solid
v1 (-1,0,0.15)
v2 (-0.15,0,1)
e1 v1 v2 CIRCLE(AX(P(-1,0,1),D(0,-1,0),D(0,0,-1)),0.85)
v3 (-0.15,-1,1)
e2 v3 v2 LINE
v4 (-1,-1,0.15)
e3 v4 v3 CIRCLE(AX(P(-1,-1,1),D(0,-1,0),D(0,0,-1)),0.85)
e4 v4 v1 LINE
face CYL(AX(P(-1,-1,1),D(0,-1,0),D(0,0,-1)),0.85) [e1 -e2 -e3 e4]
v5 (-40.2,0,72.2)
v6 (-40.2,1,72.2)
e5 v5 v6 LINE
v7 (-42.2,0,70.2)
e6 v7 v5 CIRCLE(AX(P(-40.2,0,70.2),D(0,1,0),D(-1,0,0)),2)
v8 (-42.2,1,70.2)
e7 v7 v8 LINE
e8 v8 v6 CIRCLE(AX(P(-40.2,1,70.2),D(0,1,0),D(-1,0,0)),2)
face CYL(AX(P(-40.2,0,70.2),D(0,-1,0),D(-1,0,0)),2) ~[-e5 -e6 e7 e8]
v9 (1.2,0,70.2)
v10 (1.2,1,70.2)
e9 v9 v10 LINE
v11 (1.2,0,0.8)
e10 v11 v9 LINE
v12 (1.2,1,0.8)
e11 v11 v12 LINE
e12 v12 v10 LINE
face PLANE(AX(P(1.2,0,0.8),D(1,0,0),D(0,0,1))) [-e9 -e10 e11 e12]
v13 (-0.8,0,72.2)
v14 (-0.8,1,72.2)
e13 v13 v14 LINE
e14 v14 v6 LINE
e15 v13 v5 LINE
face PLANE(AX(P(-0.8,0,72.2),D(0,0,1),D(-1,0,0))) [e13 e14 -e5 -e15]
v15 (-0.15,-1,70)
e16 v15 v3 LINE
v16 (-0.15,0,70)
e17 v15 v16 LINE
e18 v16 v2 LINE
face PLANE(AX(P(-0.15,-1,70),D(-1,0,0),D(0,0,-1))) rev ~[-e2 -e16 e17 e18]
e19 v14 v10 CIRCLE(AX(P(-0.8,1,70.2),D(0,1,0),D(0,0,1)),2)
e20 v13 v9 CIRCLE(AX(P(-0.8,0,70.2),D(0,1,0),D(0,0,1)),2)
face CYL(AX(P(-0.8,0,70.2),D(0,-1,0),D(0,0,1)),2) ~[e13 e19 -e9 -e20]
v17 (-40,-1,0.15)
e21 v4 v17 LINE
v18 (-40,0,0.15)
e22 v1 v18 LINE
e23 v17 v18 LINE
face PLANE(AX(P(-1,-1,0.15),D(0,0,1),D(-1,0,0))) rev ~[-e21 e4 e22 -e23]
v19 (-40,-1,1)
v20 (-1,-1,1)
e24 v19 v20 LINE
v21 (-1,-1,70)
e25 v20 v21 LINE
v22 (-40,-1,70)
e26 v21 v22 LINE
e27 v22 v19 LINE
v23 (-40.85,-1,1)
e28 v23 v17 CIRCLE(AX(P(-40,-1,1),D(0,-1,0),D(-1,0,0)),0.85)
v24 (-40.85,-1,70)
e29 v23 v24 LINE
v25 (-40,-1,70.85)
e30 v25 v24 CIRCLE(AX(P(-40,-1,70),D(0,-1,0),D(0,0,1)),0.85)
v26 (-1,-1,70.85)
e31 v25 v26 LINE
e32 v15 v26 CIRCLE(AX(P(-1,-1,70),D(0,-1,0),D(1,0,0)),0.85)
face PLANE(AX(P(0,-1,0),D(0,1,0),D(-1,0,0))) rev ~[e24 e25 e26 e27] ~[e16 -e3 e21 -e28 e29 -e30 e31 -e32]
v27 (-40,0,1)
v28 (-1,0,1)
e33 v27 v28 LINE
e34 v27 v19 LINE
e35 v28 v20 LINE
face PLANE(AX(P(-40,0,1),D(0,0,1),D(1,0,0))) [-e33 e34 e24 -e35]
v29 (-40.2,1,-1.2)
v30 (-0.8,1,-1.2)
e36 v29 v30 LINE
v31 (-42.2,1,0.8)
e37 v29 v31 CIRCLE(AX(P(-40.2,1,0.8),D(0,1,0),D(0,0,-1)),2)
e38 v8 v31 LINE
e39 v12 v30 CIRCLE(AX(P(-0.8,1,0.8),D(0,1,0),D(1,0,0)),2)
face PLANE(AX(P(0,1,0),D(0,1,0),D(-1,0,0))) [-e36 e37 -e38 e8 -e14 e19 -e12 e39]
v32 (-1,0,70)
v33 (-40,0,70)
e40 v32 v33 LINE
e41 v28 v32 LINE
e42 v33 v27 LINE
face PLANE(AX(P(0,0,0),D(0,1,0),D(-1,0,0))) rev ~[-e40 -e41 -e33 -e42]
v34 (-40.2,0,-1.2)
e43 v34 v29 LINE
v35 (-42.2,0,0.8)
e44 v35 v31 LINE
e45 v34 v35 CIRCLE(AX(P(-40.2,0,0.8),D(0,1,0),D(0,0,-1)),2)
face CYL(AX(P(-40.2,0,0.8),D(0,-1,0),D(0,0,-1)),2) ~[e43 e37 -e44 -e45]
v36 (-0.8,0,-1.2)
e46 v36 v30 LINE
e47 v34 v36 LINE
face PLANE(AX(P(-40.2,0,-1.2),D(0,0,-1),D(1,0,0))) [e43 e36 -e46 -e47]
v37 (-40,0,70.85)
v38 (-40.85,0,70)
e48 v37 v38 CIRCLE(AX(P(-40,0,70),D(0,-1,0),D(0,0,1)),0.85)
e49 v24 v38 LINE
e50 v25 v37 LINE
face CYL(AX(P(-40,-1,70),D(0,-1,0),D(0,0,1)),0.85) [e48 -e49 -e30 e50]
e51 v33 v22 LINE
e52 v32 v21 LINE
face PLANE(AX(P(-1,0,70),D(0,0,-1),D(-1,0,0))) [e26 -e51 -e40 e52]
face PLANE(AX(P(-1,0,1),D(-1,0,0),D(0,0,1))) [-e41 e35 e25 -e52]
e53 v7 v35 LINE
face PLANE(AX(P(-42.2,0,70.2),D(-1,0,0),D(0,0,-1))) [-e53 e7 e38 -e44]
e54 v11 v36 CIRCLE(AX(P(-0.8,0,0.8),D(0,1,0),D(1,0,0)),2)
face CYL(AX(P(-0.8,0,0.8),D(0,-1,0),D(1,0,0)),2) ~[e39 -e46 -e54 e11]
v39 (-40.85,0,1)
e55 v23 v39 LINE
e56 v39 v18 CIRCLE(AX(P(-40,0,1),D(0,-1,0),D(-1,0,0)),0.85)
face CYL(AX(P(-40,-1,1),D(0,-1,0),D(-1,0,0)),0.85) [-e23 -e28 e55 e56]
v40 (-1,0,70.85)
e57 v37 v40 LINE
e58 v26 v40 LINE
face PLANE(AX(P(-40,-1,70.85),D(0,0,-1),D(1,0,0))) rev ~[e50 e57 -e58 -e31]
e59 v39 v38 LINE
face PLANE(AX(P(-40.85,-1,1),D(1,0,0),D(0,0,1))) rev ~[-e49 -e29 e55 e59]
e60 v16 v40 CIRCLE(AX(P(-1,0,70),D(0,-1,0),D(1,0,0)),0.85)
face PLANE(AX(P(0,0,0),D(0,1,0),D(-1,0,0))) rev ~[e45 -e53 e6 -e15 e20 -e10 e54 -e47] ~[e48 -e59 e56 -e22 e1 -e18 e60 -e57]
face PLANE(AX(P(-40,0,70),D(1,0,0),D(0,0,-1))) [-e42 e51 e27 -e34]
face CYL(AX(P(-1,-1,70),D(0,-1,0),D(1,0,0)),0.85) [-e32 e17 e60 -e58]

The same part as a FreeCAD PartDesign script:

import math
import FreeCAD as App
import Part
import Sketcher
from FreeCAD import Vector

doc = App.newDocument("Part")
body = doc.addObject("PartDesign::Body", "Body")

sketch1 = body.newObject("Sketcher::SketchObject", "Sketch")
sketch1.AttachmentSupport = (doc.getObject("XZ_Plane"), [""])
sketch1.MapMode = "FlatFace"
sketch1.addGeometry([
    Part.LineSegment(Vector(-42.2, 0.8, 0), Vector(-42.2, 70.2, 0)),
    Part.ArcOfCircle(Part.Circle(Vector(-40.2, 70.2, 0), Vector(0, 0, 1), 2), math.radians(90), math.radians(180)),
    Part.LineSegment(Vector(-40.2, 72.2, 0), Vector(-0.8, 72.2, 0)),
    Part.ArcOfCircle(Part.Circle(Vector(-0.8, 70.2, 0), Vector(0, 0, 1), 2), math.radians(0), math.radians(90)),
    Part.LineSegment(Vector(1.2, 70.2, 0), Vector(1.2, 0.8, 0)),
    Part.ArcOfCircle(Part.Circle(Vector(-0.8, 0.8, 0), Vector(0, 0, 1), 2), math.radians(-90), math.radians(0)),
    Part.LineSegment(Vector(-0.8, -1.2, 0), Vector(-40.2, -1.2, 0)),
    Part.ArcOfCircle(Part.Circle(Vector(-40.2, 0.8, 0), Vector(0, 0, 1), 2), math.radians(180), math.radians(270)),
], False)
sketch1.addConstraint([
    Sketcher.Constraint("Tangent", 0, 2, 1, 2),
    Sketcher.Constraint("Tangent", 1, 1, 2, 1),
    Sketcher.Constraint("Tangent", 2, 2, 3, 2),
    Sketcher.Constraint("Tangent", 3, 1, 4, 1),
    Sketcher.Constraint("Tangent", 4, 2, 5, 2),
    Sketcher.Constraint("Tangent", 5, 1, 6, 1),
    Sketcher.Constraint("Tangent", 6, 2, 7, 2),
    Sketcher.Constraint("Tangent", 7, 1, 0, 1),
    Sketcher.Constraint("Vertical", 0),
    Sketcher.Constraint("Horizontal", 2),
    Sketcher.Constraint("Vertical", 4),
    Sketcher.Constraint("Horizontal", 6),
    Sketcher.Constraint("Equal", 1, 3),
    Sketcher.Constraint("Equal", 3, 5),
    Sketcher.Constraint("Equal", 5, 7),
    Sketcher.Constraint("Radius", 1, 2.0),
    Sketcher.Constraint("DistanceX", -1, 1, 3, 1, 1.2),
    Sketcher.Constraint("DistanceY", 5, 1, -1, 1, 1.2),
    Sketcher.Constraint("DistanceX", 2, 1, 2, 2, 39.4),
    Sketcher.Constraint("DistanceY", 0, 1, 0, 2, 69.4),
])
pad1 = body.newObject("PartDesign::Pad", "Pad")
pad1.Profile = sketch1
pad1.Length = 1
pad1.Reversed = True

sketch2 = body.newObject("Sketcher::SketchObject", "Sketch001")
sketch2.AttachmentSupport = (doc.getObject("XZ_Plane"), [""])
sketch2.MapMode = "FlatFace"
sketch2.addGeometry([
    Part.ArcOfCircle(Part.Circle(Vector(-1, 1, 0), Vector(0, 0, 1), 1), math.radians(-90), math.radians(0)),
    Part.LineSegment(Vector(-1, 0, 0), Vector(-40, 0, 0)),
    Part.ArcOfCircle(Part.Circle(Vector(-40, 1, 0), Vector(0, 0, 1), 1), math.radians(180), math.radians(270)),
    Part.LineSegment(Vector(-41, 1, 0), Vector(-41, 70, 0)),
    Part.ArcOfCircle(Part.Circle(Vector(-40, 70, 0), Vector(0, 0, 1), 1), math.radians(90), math.radians(180)),
    Part.LineSegment(Vector(-40, 71, 0), Vector(-1, 71, 0)),
    Part.ArcOfCircle(Part.Circle(Vector(-1, 70, 0), Vector(0, 0, 1), 1), math.radians(0), math.radians(90)),
    Part.LineSegment(Vector(0, 70, 0), Vector(0, 1, 0)),
    Part.LineSegment(Vector(-40, 1, 0), Vector(-1, 1, 0)),
    Part.LineSegment(Vector(-1, 1, 0), Vector(-1, 70, 0)),
    Part.LineSegment(Vector(-1, 70, 0), Vector(-40, 70, 0)),
    Part.LineSegment(Vector(-40, 70, 0), Vector(-40, 1, 0)),
], False)
sketch2.addConstraint([
    Sketcher.Constraint("Tangent", 0, 1, 1, 1),
    Sketcher.Constraint("Tangent", 1, 2, 2, 2),
    Sketcher.Constraint("Tangent", 2, 1, 3, 1),
    Sketcher.Constraint("Tangent", 3, 2, 4, 2),
    Sketcher.Constraint("Tangent", 4, 1, 5, 1),
    Sketcher.Constraint("Tangent", 5, 2, 6, 2),
    Sketcher.Constraint("Tangent", 6, 1, 7, 1),
    Sketcher.Constraint("Tangent", 7, 2, 0, 2),
    Sketcher.Constraint("Coincident", 8, 2, 9, 1),
    Sketcher.Constraint("Coincident", 9, 2, 10, 1),
    Sketcher.Constraint("Coincident", 10, 2, 11, 1),
    Sketcher.Constraint("Coincident", 11, 2, 8, 1),
    Sketcher.Constraint("Horizontal", 1),
    Sketcher.Constraint("Vertical", 3),
    Sketcher.Constraint("Horizontal", 5),
    Sketcher.Constraint("Vertical", 7),
    Sketcher.Constraint("Horizontal", 8),
    Sketcher.Constraint("Vertical", 9),
    Sketcher.Constraint("Horizontal", 10),
    Sketcher.Constraint("Vertical", 11),
    Sketcher.Constraint("Coincident", 8, 2, 0, 3),
    Sketcher.Constraint("Coincident", 9, 2, 6, 3),
    Sketcher.Constraint("Coincident", 10, 2, 4, 3),
    Sketcher.Constraint("Equal", 0, 2),
    Sketcher.Constraint("PointOnObject", 0, 1, -1),
    Sketcher.Constraint("PointOnObject", 6, 1, -2),
    Sketcher.Constraint("Radius", 0, 1.0),
    Sketcher.Constraint("DistanceX", 2, 1, -1, 1, 41.0),
    Sketcher.Constraint("DistanceY", -1, 1, 4, 1, 71.0),
])
pad2 = body.newObject("PartDesign::Pad", "Pad001")
pad2.Profile = sketch2
pad2.Length = 1

sketch3 = body.newObject("Sketcher::SketchObject", "Sketch002")
sketch3.AttachmentSupport = (doc.getObject("XZ_Plane"), [""])
sketch3.MapMode = "FlatFace"
sketch3.AttachmentOffset = App.Placement(Vector(0, 0, 1), App.Rotation())
sketch3.addGeometry([
    Part.LineSegment(Vector(-41, 70, 0), Vector(-41, 1, 0)),
    Part.ArcOfCircle(Part.Circle(Vector(-40, 1, 0), Vector(0, 0, 1), 1), math.radians(180), math.radians(270)),
    Part.LineSegment(Vector(-40, 0, 0), Vector(-1, 0, 0)),
    Part.ArcOfCircle(Part.Circle(Vector(-1, 1, 0), Vector(0, 0, 1), 1), math.radians(-90), math.radians(0)),
    Part.LineSegment(Vector(0, 1, 0), Vector(0, 70, 0)),
    Part.ArcOfCircle(Part.Circle(Vector(-1, 70, 0), Vector(0, 0, 1), 1), math.radians(0), math.radians(90)),
    Part.LineSegment(Vector(-1, 71, 0), Vector(-40, 71, 0)),
    Part.ArcOfCircle(Part.Circle(Vector(-40, 70, 0), Vector(0, 0, 1), 1), math.radians(90), math.radians(180)),
    Part.ArcOfCircle(Part.Circle(Vector(-1, 1, 0), Vector(0, 0, 1), 0.85), math.radians(-90), math.radians(0)),
    Part.LineSegment(Vector(-1, 0.15, 0), Vector(-40, 0.15, 0)),
    Part.ArcOfCircle(Part.Circle(Vector(-40, 1, 0), Vector(0, 0, 1), 0.85), math.radians(180), math.radians(270)),
    Part.LineSegment(Vector(-40.85, 1, 0), Vector(-40.85, 70, 0)),
    Part.ArcOfCircle(Part.Circle(Vector(-40, 70, 0), Vector(0, 0, 1), 0.85), math.radians(90), math.radians(180)),
    Part.LineSegment(Vector(-40, 70.85, 0), Vector(-1, 70.85, 0)),
    Part.ArcOfCircle(Part.Circle(Vector(-1, 70, 0), Vector(0, 0, 1), 0.85), math.radians(0), math.radians(90)),
    Part.LineSegment(Vector(-0.15, 70, 0), Vector(-0.15, 1, 0)),
], False)
sketch3.addConstraint([
    Sketcher.Constraint("Tangent", 0, 2, 1, 1),
    Sketcher.Constraint("Tangent", 1, 2, 2, 1),
    Sketcher.Constraint("Tangent", 2, 2, 3, 1),
    Sketcher.Constraint("Tangent", 3, 2, 4, 1),
    Sketcher.Constraint("Tangent", 4, 2, 5, 1),
    Sketcher.Constraint("Tangent", 5, 2, 6, 1),
    Sketcher.Constraint("Tangent", 6, 2, 7, 1),
    Sketcher.Constraint("Tangent", 7, 2, 0, 1),
    Sketcher.Constraint("Tangent", 8, 1, 9, 1),
    Sketcher.Constraint("Tangent", 9, 2, 10, 2),
    Sketcher.Constraint("Tangent", 10, 1, 11, 1),
    Sketcher.Constraint("Tangent", 11, 2, 12, 2),
    Sketcher.Constraint("Tangent", 12, 1, 13, 1),
    Sketcher.Constraint("Tangent", 13, 2, 14, 2),
    Sketcher.Constraint("Tangent", 14, 1, 15, 1),
    Sketcher.Constraint("Tangent", 15, 2, 8, 2),
    Sketcher.Constraint("Vertical", 0),
    Sketcher.Constraint("Horizontal", 2),
    Sketcher.Constraint("Vertical", 4),
    Sketcher.Constraint("Horizontal", 6),
    Sketcher.Constraint("Horizontal", 9),
    Sketcher.Constraint("Vertical", 11),
    Sketcher.Constraint("Horizontal", 13),
    Sketcher.Constraint("Vertical", 15),
    Sketcher.Constraint("Coincident", 8, 3, 3, 3),
    Sketcher.Constraint("Coincident", 10, 3, 1, 3),
    Sketcher.Constraint("Coincident", 12, 3, 7, 3),
    Sketcher.Constraint("Equal", 1, 3),
    Sketcher.Constraint("Equal", 3, 5),
    Sketcher.Constraint("Equal", 5, 7),
    Sketcher.Constraint("Equal", 12, 14),
    Sketcher.Constraint("PointOnObject", 1, 2, -1),
    Sketcher.Constraint("PointOnObject", 3, 2, -2),
    Sketcher.Constraint("Radius", 1, 1.0),
    Sketcher.Constraint("DistanceX", 2, 1, 2, 2, 39.0),
    Sketcher.Constraint("DistanceY", 0, 2, 0, 1, 69.0),
    Sketcher.Constraint("DistanceY", -1, 1, 8, 1, 0.15),
])
pocket1 = body.newObject("PartDesign::Pocket", "Pocket")
pocket1.Profile = sketch3
pocket1.Length = 1

doc.recompute()
